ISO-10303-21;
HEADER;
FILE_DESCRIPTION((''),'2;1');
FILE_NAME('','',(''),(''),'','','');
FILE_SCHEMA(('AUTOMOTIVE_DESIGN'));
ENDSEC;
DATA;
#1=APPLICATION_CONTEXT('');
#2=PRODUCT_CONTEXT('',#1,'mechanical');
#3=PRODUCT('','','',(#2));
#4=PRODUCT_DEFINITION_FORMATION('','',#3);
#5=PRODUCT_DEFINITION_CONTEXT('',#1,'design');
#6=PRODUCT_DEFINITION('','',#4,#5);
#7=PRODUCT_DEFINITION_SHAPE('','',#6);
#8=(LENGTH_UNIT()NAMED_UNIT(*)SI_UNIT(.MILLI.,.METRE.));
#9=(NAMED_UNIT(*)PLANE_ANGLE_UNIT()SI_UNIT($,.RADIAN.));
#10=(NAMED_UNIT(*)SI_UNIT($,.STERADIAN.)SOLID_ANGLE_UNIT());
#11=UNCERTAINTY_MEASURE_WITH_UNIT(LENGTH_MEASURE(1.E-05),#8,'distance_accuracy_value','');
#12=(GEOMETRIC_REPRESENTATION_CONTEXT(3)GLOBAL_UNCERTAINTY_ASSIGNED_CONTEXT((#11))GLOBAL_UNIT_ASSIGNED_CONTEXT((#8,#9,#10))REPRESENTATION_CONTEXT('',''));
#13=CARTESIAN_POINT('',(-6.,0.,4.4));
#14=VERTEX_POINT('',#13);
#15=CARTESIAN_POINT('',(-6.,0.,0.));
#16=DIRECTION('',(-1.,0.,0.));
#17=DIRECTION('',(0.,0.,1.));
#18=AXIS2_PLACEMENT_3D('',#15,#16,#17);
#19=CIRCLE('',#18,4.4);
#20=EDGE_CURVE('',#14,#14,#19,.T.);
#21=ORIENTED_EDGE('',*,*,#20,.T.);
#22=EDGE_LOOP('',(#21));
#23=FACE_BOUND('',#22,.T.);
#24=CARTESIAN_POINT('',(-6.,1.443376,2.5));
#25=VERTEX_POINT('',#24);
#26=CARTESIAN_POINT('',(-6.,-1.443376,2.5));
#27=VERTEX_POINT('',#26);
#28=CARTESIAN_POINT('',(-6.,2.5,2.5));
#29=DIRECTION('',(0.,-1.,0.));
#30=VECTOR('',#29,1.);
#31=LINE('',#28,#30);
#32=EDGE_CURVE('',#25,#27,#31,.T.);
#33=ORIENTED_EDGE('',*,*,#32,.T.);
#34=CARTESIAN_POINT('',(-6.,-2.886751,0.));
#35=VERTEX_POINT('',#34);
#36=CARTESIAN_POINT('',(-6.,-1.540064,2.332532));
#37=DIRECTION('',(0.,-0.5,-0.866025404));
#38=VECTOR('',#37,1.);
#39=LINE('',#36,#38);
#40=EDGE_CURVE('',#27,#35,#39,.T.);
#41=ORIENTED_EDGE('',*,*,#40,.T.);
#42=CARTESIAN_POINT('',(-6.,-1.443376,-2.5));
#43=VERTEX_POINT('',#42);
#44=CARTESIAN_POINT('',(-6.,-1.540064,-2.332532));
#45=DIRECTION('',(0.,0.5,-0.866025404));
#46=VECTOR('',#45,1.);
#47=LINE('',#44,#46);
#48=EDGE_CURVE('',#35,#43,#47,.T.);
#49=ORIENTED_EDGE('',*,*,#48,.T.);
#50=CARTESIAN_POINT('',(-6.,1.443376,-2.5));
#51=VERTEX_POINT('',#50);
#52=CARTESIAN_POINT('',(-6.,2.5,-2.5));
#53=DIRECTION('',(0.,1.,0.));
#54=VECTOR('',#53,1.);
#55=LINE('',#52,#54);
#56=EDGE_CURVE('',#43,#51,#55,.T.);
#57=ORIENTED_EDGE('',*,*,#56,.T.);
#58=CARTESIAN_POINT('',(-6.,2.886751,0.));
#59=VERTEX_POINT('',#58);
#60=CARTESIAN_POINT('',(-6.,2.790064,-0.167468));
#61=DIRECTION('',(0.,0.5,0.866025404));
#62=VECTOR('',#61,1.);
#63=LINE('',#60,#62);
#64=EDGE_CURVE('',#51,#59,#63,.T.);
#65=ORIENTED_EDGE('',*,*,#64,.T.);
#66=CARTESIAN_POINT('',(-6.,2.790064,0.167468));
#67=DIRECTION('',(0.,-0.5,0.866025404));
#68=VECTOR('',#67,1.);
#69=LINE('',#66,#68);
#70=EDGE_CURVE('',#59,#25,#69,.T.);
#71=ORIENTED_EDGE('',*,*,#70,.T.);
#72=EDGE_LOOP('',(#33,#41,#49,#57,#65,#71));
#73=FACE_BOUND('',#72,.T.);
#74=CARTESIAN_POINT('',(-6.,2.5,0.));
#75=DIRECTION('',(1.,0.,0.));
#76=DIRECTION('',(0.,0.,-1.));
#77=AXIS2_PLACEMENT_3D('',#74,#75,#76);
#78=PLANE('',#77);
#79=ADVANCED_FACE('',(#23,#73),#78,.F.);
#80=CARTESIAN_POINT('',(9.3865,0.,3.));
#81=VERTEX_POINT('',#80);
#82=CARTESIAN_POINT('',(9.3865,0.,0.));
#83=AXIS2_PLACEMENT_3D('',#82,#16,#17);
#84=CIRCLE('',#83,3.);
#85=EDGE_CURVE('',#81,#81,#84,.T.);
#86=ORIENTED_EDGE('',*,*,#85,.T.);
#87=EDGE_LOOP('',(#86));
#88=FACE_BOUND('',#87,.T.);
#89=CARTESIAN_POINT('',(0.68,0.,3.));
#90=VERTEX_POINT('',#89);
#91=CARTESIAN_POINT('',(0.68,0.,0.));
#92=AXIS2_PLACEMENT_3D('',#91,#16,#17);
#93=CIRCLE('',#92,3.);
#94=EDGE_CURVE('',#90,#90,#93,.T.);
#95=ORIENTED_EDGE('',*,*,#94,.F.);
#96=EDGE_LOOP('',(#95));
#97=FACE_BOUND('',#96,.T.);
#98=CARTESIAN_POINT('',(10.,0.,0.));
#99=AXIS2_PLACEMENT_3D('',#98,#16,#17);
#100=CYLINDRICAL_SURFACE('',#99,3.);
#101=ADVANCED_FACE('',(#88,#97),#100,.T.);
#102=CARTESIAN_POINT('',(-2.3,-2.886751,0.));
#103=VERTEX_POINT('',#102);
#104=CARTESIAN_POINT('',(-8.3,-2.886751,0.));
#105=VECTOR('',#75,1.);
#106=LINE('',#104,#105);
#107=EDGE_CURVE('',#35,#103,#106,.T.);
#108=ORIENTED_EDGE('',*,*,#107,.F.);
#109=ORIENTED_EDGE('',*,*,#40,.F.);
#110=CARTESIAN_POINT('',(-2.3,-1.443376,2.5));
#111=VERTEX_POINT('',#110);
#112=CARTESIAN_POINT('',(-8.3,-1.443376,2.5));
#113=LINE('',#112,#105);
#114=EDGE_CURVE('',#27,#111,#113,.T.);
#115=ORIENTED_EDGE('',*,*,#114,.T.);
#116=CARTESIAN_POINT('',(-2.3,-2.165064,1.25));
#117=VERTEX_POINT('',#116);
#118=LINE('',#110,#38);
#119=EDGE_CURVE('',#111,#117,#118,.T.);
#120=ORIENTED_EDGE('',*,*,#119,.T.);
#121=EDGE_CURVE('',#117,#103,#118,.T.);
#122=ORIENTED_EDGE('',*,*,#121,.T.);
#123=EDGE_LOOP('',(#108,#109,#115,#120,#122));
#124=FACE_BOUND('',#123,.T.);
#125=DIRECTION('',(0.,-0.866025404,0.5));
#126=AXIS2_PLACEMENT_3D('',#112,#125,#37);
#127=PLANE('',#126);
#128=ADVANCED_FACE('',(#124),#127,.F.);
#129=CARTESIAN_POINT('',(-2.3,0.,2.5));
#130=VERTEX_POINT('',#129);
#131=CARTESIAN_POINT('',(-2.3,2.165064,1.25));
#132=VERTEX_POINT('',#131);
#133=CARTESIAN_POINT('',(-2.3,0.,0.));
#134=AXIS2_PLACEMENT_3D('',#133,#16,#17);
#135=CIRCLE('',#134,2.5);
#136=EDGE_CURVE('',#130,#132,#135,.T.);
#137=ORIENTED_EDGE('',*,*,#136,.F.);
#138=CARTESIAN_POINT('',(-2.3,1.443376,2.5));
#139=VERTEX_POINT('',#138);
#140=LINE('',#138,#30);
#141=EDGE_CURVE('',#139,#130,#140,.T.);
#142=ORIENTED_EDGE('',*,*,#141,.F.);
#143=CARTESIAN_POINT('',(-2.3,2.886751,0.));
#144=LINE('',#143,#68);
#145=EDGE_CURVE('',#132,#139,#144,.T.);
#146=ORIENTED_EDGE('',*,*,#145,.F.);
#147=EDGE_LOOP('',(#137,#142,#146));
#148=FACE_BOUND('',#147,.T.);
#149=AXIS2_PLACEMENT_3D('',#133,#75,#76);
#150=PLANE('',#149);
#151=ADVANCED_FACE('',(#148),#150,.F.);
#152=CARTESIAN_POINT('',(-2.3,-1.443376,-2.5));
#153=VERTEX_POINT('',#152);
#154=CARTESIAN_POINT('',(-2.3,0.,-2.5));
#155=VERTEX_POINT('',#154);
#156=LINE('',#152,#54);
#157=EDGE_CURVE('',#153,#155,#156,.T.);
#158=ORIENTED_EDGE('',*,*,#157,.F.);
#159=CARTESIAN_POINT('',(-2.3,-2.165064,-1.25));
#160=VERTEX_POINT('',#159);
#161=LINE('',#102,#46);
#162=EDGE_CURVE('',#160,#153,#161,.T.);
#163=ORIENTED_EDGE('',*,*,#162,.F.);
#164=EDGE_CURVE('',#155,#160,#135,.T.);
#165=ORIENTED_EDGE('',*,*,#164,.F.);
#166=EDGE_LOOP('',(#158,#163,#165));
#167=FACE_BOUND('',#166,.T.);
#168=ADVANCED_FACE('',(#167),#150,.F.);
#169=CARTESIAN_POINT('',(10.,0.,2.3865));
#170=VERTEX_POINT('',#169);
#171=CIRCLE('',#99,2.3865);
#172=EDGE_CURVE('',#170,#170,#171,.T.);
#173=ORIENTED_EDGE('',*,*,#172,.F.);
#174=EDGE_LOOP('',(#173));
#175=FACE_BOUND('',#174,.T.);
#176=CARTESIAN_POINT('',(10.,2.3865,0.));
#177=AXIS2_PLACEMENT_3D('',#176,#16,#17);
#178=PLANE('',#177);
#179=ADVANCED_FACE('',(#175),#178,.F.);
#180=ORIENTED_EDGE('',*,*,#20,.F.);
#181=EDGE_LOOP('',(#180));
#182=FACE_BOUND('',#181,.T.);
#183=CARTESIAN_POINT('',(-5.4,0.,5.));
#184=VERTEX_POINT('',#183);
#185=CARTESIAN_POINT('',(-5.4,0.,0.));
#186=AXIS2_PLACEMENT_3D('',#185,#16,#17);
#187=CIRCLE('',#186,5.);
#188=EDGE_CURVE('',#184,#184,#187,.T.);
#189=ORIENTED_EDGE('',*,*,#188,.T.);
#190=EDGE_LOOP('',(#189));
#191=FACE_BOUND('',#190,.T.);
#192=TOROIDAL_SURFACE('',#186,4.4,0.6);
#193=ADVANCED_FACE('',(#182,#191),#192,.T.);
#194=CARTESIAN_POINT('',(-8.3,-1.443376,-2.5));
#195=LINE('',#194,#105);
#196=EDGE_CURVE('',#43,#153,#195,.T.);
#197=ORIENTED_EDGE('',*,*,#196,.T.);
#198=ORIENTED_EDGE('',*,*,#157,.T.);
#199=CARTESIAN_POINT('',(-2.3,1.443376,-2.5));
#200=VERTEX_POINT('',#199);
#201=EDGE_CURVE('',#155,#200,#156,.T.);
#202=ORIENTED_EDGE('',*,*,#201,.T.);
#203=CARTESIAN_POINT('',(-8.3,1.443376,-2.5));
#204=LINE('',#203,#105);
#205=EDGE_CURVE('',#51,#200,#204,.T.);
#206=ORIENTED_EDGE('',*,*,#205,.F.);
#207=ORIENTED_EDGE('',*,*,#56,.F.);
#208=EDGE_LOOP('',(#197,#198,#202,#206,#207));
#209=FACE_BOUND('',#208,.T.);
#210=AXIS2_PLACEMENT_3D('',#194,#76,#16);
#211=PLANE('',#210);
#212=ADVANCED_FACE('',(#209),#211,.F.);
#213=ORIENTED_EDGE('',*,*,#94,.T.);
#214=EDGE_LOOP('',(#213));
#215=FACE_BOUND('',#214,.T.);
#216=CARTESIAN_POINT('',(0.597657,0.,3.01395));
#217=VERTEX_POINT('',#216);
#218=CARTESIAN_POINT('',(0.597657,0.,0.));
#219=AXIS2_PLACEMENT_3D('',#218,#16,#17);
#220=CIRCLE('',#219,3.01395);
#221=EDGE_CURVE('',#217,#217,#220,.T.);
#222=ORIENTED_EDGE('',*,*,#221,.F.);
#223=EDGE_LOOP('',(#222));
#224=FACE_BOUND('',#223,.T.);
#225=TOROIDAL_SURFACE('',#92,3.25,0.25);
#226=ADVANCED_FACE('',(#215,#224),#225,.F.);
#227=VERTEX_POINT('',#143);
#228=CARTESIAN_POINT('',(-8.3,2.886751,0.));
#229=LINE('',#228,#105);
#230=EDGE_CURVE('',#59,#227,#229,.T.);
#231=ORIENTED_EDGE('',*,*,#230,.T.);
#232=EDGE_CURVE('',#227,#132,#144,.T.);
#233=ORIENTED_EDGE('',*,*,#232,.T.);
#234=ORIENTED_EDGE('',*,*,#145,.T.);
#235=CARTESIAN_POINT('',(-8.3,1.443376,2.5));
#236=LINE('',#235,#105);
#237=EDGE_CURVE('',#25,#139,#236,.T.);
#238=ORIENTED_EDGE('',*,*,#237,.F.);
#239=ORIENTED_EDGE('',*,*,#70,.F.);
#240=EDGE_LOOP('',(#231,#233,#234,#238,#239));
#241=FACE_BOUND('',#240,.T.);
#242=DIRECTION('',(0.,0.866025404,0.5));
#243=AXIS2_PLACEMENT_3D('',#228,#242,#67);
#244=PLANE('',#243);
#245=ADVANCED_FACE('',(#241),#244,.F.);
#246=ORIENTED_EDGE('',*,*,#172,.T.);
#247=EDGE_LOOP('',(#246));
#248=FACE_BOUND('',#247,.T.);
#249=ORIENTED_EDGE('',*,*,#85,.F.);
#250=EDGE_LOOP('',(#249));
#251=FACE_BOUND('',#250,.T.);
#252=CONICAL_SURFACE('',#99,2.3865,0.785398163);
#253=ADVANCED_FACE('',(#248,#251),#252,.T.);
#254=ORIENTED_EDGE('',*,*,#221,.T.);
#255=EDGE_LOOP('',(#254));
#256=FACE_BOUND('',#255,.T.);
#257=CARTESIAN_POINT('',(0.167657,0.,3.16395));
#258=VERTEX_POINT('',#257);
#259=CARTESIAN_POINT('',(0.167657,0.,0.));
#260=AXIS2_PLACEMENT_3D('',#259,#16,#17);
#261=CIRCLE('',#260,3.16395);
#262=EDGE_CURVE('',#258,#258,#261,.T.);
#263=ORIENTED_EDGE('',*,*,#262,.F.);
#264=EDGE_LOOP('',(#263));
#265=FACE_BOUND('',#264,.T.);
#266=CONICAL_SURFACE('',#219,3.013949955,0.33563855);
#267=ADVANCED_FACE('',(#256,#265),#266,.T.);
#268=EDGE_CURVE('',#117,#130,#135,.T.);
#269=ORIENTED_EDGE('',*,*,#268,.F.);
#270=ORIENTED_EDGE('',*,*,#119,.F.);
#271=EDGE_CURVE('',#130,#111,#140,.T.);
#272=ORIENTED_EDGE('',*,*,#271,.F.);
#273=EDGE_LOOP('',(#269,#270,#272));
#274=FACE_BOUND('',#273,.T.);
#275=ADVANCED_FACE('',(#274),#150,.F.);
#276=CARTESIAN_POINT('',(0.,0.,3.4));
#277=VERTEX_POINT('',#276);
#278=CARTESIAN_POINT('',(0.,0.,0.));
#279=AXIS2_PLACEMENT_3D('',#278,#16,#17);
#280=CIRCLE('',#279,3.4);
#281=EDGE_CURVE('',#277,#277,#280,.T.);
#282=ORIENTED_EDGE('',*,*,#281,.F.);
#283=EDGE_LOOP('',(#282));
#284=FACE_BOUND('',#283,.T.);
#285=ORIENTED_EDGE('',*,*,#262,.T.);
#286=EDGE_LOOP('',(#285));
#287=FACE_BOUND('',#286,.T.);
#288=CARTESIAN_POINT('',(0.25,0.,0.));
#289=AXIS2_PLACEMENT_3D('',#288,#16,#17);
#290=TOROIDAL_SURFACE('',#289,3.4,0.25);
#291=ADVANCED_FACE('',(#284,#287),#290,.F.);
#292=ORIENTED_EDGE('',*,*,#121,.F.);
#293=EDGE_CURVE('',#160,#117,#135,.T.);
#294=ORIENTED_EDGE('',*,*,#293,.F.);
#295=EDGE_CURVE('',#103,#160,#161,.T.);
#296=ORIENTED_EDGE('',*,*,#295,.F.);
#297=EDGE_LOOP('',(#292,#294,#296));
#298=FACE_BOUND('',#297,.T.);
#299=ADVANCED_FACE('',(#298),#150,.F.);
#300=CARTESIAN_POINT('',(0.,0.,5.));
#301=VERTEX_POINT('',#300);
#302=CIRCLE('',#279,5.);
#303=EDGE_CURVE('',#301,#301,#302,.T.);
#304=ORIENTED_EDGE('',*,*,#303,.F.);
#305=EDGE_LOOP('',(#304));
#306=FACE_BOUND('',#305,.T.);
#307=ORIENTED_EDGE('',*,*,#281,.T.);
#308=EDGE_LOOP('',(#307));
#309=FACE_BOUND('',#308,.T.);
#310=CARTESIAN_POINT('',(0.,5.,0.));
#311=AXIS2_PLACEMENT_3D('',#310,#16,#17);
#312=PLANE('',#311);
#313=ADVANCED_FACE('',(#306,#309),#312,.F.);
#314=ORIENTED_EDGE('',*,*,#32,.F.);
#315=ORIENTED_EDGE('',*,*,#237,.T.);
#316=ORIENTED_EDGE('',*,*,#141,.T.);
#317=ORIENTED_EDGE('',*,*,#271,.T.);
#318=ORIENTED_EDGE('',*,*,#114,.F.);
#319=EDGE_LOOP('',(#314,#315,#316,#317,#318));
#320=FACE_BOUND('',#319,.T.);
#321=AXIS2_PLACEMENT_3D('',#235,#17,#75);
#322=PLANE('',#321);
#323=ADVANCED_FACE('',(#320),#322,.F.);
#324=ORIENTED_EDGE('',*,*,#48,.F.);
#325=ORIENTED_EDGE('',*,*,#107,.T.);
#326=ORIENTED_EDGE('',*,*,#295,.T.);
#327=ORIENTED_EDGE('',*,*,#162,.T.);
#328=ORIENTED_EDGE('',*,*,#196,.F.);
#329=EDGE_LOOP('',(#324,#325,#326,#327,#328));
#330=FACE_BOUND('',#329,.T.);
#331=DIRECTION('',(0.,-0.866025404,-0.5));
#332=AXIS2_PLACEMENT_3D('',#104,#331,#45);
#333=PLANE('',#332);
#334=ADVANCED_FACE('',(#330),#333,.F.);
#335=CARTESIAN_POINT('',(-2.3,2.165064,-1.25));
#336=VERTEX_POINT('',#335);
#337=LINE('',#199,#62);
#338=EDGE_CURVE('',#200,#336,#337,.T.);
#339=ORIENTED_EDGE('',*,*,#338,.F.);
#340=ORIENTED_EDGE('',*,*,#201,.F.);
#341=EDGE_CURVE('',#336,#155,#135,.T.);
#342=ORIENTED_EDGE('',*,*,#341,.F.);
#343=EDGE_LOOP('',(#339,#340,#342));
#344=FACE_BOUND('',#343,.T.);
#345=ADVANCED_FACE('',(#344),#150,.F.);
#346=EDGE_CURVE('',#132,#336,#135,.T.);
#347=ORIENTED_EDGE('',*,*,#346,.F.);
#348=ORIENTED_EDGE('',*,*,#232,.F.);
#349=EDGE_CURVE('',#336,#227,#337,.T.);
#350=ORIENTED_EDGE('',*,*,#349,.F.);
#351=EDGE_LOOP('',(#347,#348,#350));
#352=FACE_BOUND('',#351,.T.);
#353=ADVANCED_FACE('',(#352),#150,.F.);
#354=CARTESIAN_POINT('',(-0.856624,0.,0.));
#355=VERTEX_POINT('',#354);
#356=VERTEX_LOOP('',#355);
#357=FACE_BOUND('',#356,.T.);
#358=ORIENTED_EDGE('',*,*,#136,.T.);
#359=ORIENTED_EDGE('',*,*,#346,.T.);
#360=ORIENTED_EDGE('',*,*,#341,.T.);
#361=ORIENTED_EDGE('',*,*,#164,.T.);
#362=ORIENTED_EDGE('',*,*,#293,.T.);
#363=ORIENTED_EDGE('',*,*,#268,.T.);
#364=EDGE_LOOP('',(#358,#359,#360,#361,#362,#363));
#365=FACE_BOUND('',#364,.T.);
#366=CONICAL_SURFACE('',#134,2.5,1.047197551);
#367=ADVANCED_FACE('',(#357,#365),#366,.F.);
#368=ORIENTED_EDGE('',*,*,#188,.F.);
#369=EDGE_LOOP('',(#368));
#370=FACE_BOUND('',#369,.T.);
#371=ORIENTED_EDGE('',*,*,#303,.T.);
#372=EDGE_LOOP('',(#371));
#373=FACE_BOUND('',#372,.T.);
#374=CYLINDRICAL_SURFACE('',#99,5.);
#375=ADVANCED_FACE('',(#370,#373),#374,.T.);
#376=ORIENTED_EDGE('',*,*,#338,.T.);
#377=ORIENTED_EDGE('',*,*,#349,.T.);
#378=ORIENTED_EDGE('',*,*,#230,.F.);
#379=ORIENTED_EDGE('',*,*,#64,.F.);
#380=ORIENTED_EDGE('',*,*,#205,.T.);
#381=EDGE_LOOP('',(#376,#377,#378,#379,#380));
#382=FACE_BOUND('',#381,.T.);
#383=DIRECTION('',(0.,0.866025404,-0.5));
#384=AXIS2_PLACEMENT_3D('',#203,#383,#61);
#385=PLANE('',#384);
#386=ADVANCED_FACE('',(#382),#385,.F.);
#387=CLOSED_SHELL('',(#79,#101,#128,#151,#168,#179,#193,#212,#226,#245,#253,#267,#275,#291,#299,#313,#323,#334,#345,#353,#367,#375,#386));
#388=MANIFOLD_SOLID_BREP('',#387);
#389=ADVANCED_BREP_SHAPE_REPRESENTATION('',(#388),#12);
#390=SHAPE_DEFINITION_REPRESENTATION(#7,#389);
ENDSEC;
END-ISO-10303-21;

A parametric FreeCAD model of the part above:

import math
import FreeCAD as App
import Part
import Sketcher
from FreeCAD import Vector
Q = App.Units.Quantity

doc = App.newDocument("Part")
body = doc.addObject("PartDesign::Body", "Body")

# Sketch on XY plane
sketch1 = doc.addObject("Sketcher::SketchObject", "Sketch")
body.addObject(sketch1)
sketch1.AttachmentSupport = (doc.XY_Plane, [""])
sketch1.MapMode = "FlatFace"
sketch1.addGeometry([
    Part.LineSegment(Vector(-2.3, 2.5, 0), Vector(-0.86, 0, 0)),  # 0
    Part.LineSegment(Vector(-0.86, 0, 0), Vector(10, 0, 0)),  # 1
    Part.LineSegment(Vector(10, 0, 0), Vector(10, 2.39, 0)),  # 2
    Part.LineSegment(Vector(10, 2.39, 0), Vector(9.39, 3, 0)),  # 3
    Part.LineSegment(Vector(9.39, 3, 0), Vector(0.68, 3, 0)),  # 4
    Part.ArcOfCircle(Part.Circle(Vector(0.68, 3.25, 0), Vector(0, 0, 1), 0.25), math.radians(-109.23), math.radians(-90)),  # 5
    Part.LineSegment(Vector(0.6, 3.01, 0), Vector(0.17, 3.16, 0)),  # 6
    Part.ArcOfCircle(Part.Circle(Vector(0.25, 3.4, 0), Vector(0, 0, 1), 0.25), math.radians(-180), math.radians(-109)),  # 7
    Part.LineSegment(Vector(0, 3.4, 0), Vector(0, 5, 0)),  # 8
    Part.LineSegment(Vector(0, 5, 0), Vector(-5.4, 5, 0)),  # 9
    Part.ArcOfCircle(Part.Circle(Vector(-5.4, 4.4, 0), Vector(0, 0, 1), 0.6), math.radians(90), math.radians(180)),  # 10
    Part.LineSegment(Vector(-6, 4.4, 0), Vector(-6, 2.5, 0)),  # 11
    Part.LineSegment(Vector(-6, 2.5, 0), Vector(-2.3, 2.5, 0)),  # 12
], False)
sketch1.addConstraint([
    Sketcher.Constraint("Coincident", 0, 2, 1, 1),
    Sketcher.Constraint("Coincident", 1, 2, 2, 1),
    Sketcher.Constraint("Coincident", 2, 2, 3, 1),
    Sketcher.Constraint("Coincident", 3, 2, 4, 1),
    Sketcher.Constraint("Tangent", 4, 2, 5, 2),
    Sketcher.Constraint("Tangent", 5, 1, 6, 1),
    Sketcher.Constraint("Tangent", 6, 2, 7, 2),
    Sketcher.Constraint("Tangent", 7, 1, 8, 1),
    Sketcher.Constraint("Coincident", 8, 2, 9, 1),
    Sketcher.Constraint("Tangent", 9, 2, 10, 1),
    Sketcher.Constraint("Tangent", 10, 2, 11, 1),
    Sketcher.Constraint("Coincident", 11, 2, 12, 1),
    Sketcher.Constraint("Coincident", 12, 2, 0, 1),
    Sketcher.Constraint("Horizontal", 1),
    Sketcher.Constraint("Vertical", 2),
    Sketcher.Constraint("Horizontal", 4),
    Sketcher.Constraint("Vertical", 8),
    Sketcher.Constraint("Horizontal", 9),
    Sketcher.Constraint("Vertical", 11),
    Sketcher.Constraint("Horizontal", 12),
    Sketcher.Constraint("Equal", 5, 7),
    Sketcher.Constraint("PointOnObject", 0, 2, -1),
    Sketcher.Constraint("PointOnObject", 7, 1, -2),
    Sketcher.Constraint("Radius", 10, Q("0.6 mm")),
    Sketcher.Constraint("Angle", 0, Q("-60 deg")),
    Sketcher.Constraint("Angle", 3, Q("135 deg")),
    Sketcher.Constraint("Radius", 5, Q("0.25 mm")),
    Sketcher.Constraint("DistanceX", 9, 2, 9, 1, Q("5.4 mm")),
    Sketcher.Constraint("DistanceX", 12, 1, 12, 2, Q("3.7 mm")),
    Sketcher.Constraint("DistanceY", 8, 1, 8, 2, Q("1.6 mm")),
    Sketcher.Constraint("DistanceY", 11, 2, 11, 1, Q("1.9 mm")),
    Sketcher.Constraint("DistanceX", -1, 1, 1, 2, Q("10 mm")),
    Sketcher.Constraint("DistanceY", -1, 1, 3, 2, Q("3 mm")),
    Sketcher.Constraint("DistanceY", -1, 1, 8, 2, Q("5 mm")),
    Sketcher.Constraint("DistanceX", -1, 1, 5, 3, Q("0.68 mm")),
    Sketcher.Constraint("DistanceX", 4, 2, 4, 1, Q("8.7065 mm")),
])
revolution = doc.addObject("PartDesign::Revolution", "Revolution")
body.addObject(revolution)
revolution.Profile = sketch1
revolution.ReferenceAxis = (sketch1, ["H_Axis"])
revolution.Angle = 360

# Sketch on YZ plane
sketch2 = doc.addObject("Sketcher::SketchObject", "Sketch001")
body.addObject(sketch2)
sketch2.AttachmentSupport = (doc.YZ_Plane, [""])
sketch2.MapMode = "FlatFace"
sketch2.AttachmentOffset = App.Placement(Vector(0, 0, -2.3), App.Rotation())
sketch2.addGeometry([
    Part.LineSegment(Vector(1.4, 2.5, 0), Vector(-1.4, 2.5, 0)),  # 0
    Part.LineSegment(Vector(-1.4, 2.5, 0), Vector(-2.9, 0, 0)),  # 1
    Part.LineSegment(Vector(-2.9, 0, 0), Vector(-1.4, -2.5, 0)),  # 2
    Part.LineSegment(Vector(-1.4, -2.5, 0), Vector(1.4, -2.5, 0)),  # 3
    Part.LineSegment(Vector(1.4, -2.5, 0), Vector(2.9, 0, 0)),  # 4
    Part.LineSegment(Vector(2.9, 0, 0), Vector(1.4, 2.5, 0)),  # 5
], False)
sketch2.addConstraint([
    Sketcher.Constraint("Coincident", 0, 2, 1, 1),
    Sketcher.Constraint("Coincident", 1, 2, 2, 1),
    Sketcher.Constraint("Coincident", 2, 2, 3, 1),
    Sketcher.Constraint("Coincident", 3, 2, 4, 1),
    Sketcher.Constraint("Coincident", 4, 2, 5, 1),
    Sketcher.Constraint("Coincident", 5, 2, 0, 1),
    Sketcher.Constraint("Horizontal", 0),
    Sketcher.Constraint("Horizontal", 3),
    Sketcher.Constraint("Symmetric", 0, 2, 3, 2, -1, 1),
    Sketcher.Constraint("Symmetric", 1, 2, 4, 2, -1, 1),
    Sketcher.Constraint("PointOnObject", 1, 2, -1),
    Sketcher.Constraint("Parallel", 2, 5),
    Sketcher.Constraint("Vertical", 0, 2, 2, 2),
    Sketcher.Constraint("Angle", 1, Q("-120 deg")),
    Sketcher.Constraint("DistanceY", 2, 2, 0, 2, Q("5 mm")),
    Sketcher.Constraint("DistanceX", 0, 2, 0, 1, Q("2.886751 mm")),
])
pocket1 = doc.addObject("PartDesign::Pocket", "Pocket")
body.addObject(pocket1)
pocket1.Profile = sketch2
pocket1.Length = 6
body2 = doc.addObject("PartDesign::Body", "Body001")

# Sketch on YZ plane
sketch3 = doc.addObject("Sketcher::SketchObject", "Sketch002")
body2.addObject(sketch3)
sketch3.AttachmentSupport = (doc.getObject("YZ_Plane001"), [""])
sketch3.MapMode = "FlatFace"
sketch3.addGeometry(Part.Circle(Vector(0, 0, 0), Vector(0, 0, 1), 3.8), False)
sketch3.addConstraint([
    Sketcher.Constraint("Coincident", 0, 3, -1, 1),
    Sketcher.Constraint("Diameter", 0, Q("7.5 mm")),
])
pad1 = doc.addObject("PartDesign::Pad", "Pad")
body2.addObject(pad1)
pad1.Profile = sketch3
pad1.Length = 3
pad1.Reversed = True
body2.Visibility = False

doc.recompute()
